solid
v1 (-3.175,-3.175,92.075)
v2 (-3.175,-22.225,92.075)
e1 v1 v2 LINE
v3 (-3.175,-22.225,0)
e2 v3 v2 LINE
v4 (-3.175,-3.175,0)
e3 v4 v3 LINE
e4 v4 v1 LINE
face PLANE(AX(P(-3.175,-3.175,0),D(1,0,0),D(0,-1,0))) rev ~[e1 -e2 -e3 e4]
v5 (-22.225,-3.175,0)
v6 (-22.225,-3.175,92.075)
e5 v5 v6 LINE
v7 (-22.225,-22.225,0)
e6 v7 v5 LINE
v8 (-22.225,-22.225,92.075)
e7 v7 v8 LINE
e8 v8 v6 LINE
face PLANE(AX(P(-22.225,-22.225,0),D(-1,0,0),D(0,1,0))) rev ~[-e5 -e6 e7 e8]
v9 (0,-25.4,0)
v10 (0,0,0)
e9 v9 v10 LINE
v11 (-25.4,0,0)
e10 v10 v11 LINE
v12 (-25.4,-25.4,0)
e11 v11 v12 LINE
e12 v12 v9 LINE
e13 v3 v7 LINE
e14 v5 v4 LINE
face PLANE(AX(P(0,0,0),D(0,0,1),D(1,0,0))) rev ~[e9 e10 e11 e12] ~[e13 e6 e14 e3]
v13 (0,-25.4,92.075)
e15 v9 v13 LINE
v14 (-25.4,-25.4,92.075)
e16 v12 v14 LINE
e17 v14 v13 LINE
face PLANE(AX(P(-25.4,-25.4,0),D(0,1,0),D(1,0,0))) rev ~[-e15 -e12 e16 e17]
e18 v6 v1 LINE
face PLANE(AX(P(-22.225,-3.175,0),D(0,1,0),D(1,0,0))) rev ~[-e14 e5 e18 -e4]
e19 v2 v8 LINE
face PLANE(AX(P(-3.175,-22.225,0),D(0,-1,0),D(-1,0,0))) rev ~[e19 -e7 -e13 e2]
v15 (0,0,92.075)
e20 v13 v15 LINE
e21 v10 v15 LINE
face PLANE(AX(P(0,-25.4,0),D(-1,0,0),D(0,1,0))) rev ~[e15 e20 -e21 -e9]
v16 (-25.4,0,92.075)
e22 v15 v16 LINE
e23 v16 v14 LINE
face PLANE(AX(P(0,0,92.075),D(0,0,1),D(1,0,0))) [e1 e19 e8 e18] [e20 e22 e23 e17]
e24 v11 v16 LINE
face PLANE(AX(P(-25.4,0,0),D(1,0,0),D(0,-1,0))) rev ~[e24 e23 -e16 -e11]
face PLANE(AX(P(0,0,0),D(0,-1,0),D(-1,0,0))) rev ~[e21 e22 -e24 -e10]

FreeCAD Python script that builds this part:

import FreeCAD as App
import Part
import Sketcher

V = App.Vector
Q = App.Units.Quantity


def add_polygon(sketch, points):
    """Adds a closed chain of lines whose ends are joined by coincident constraints."""
    first, n = sketch.GeometryCount, len(points)
    for a, b in zip(points, points[1:] + points[:1]):
        sketch.addGeometry(Part.LineSegment(App.Vector(*a, 0), App.Vector(*b, 0)), False)
    for i in range(n):
        sketch.addConstraint(Sketcher.Constraint("Coincident", first + i, 2, first + (i + 1) % n, 1))

doc = App.newDocument("Part")
body = doc.addObject("PartDesign::Body", "Body")

sketch1 = doc.addObject("Sketcher::SketchObject", "Sketch")
body.addObject(sketch1)
sketch1.AttachmentSupport = (doc.XY_Plane, [""])
sketch1.MapMode = "FlatFace"
add_polygon(sketch1, [(0, -25), (0, 0), (-25, 0), (-25, -25)])
add_polygon(sketch1, [(-22, -22), (-22, -3), (-3, -3), (-3, -22)])
sketch1.addConstraint([
    Sketcher.Constraint("Vertical", 0),
    Sketcher.Constraint("Horizontal", 1),
    Sketcher.Constraint("Vertical", 2),
    Sketcher.Constraint("Horizontal", 3),
    Sketcher.Constraint("Vertical", 4),
    Sketcher.Constraint("Horizontal", 5),
    Sketcher.Constraint("Vertical", 6),
    Sketcher.Constraint("Horizontal", 7),
    Sketcher.Constraint("Coincident", 0, 2, -1, 1),
    Sketcher.Constraint("Equal", 3, 0),
    Sketcher.Constraint("Equal", 7, 4),
    Sketcher.Constraint("DistanceX", 1, 2, 1, 1, Q("1 in")),
    Sketcher.Constraint("DistanceY", 4, 2, -1, 1, Q("0.125 in")),
    Sketcher.Constraint("DistanceX", 5, 2, -1, 1, Q("0.125 in")),
    Sketcher.Constraint("DistanceX", 1, 2, 4, 2, Q("0.125 in")),
])
pad1 = doc.addObject("PartDesign::Pad", "Pad")
body.addObject(pad1)
pad1.Profile = sketch1
pad1.Length = Q("3.625 in")

doc.recompute()
